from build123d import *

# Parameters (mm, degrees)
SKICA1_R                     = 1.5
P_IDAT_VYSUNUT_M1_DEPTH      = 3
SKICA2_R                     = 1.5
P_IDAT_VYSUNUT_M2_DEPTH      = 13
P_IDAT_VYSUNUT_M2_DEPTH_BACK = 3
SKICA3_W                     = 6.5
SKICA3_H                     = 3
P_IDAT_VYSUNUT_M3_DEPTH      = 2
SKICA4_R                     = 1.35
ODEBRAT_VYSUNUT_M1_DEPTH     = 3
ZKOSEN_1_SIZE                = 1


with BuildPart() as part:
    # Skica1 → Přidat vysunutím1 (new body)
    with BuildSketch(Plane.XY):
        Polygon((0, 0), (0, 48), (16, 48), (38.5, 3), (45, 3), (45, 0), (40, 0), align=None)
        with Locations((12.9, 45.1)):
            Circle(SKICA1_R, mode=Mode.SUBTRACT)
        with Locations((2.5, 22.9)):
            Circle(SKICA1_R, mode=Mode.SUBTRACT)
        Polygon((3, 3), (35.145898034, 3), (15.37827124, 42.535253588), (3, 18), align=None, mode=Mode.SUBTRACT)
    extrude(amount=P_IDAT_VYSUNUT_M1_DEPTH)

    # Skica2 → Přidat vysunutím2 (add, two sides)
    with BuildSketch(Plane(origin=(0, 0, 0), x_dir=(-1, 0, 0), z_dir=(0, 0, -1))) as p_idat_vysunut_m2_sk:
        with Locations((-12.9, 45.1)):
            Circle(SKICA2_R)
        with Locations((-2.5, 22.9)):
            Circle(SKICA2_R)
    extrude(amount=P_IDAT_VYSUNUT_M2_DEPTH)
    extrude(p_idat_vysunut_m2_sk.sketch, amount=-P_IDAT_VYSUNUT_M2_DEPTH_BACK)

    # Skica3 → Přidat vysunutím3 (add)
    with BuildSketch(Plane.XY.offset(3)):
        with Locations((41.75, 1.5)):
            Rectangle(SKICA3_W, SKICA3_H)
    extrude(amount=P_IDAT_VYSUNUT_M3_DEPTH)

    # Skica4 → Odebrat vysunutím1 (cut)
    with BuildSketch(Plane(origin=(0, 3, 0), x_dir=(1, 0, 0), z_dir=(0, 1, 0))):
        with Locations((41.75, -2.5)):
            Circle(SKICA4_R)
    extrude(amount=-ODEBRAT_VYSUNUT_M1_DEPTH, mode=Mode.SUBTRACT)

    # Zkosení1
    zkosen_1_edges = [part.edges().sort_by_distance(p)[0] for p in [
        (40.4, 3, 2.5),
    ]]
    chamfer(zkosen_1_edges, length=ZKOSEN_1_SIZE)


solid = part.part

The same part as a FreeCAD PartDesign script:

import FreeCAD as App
import Part
import Sketcher
from FreeCAD import Vector


def edges_at(feature, points):
    """Names of the edges that pass closest to the given points."""
    edges = feature.Shape.Edges
    near = lambda p: min(range(len(edges)), key=lambda i: edges[i].distToShape(Part.Vertex(*p))[0])
    return sorted({f"Edge{near(p) + 1}" for p in points})

doc = App.newDocument("Part")
body = doc.addObject("PartDesign::Body", "Body")

sketch1 = body.newObject("Sketcher::SketchObject", "Sketch")
sketch1.AttachmentSupport = (doc.getObject("XY_Plane"), [""])
sketch1.MapMode = "FlatFace"
sketch1.addGeometry(Part.LineSegment(Vector(0, 48, 0), Vector(0, 0, 0)), False)
sketch1.addGeometry(Part.LineSegment(Vector(0, 0, 0), Vector(45, 0, 0)), False)
sketch1.addGeometry(Part.LineSegment(Vector(45, 0, 0), Vector(45, 3, 0)), False)
sketch1.addGeometry(Part.LineSegment(Vector(45, 3, 0), Vector(38.5, 3, 0)), False)
sketch1.addGeometry(Part.LineSegment(Vector(38.5, 3, 0), Vector(16, 48, 0)), False)
sketch1.addGeometry(Part.LineSegment(Vector(16, 48, 0), Vector(0, 48, 0)), False)
sketch1.addGeometry(Part.LineSegment(Vector(3, 3, 0), Vector(3, 18, 0)), False)
sketch1.addGeometry(Part.LineSegment(Vector(3, 18, 0), Vector(15.378271, 42.535254, 0)), False)
sketch1.addGeometry(Part.LineSegment(Vector(15.378271, 42.535254, 0), Vector(35.145898, 3, 0)), False)
sketch1.addGeometry(Part.LineSegment(Vector(35.145898, 3, 0), Vector(3, 3, 0)), False)
sketch1.addGeometry(Part.Circle(Vector(2.5, 22.9, 0), Vector(0, 0, 1), 1.5), False)
sketch1.addGeometry(Part.Circle(Vector(12.9, 45.1, 0), Vector(0, 0, 1), 1.5), False)
sketch1.addConstraint(Sketcher.Constraint("Coincident", 0, 2, 1, 1))
sketch1.addConstraint(Sketcher.Constraint("Coincident", 1, 2, 2, 1))
sketch1.addConstraint(Sketcher.Constraint("Coincident", 2, 2, 3, 1))
sketch1.addConstraint(Sketcher.Constraint("Coincident", 3, 2, 4, 1))
sketch1.addConstraint(Sketcher.Constraint("Coincident", 4, 2, 5, 1))
sketch1.addConstraint(Sketcher.Constraint("Coincident", 5, 2, 0, 1))
sketch1.addConstraint(Sketcher.Constraint("Coincident", 6, 2, 7, 1))
sketch1.addConstraint(Sketcher.Constraint("Coincident", 7, 2, 8, 1))
sketch1.addConstraint(Sketcher.Constraint("Coincident", 8, 2, 9, 1))
sketch1.addConstraint(Sketcher.Constraint("Coincident", 9, 2, 6, 1))
sketch1.addConstraint(Sketcher.Constraint("Vertical", 0))
sketch1.addConstraint(Sketcher.Constraint("Horizontal", 1))
sketch1.addConstraint(Sketcher.Constraint("Vertical", 2))
sketch1.addConstraint(Sketcher.Constraint("Horizontal", 3))
sketch1.addConstraint(Sketcher.Constraint("Horizontal", 5))
sketch1.addConstraint(Sketcher.Constraint("Vertical", 6))
sketch1.addConstraint(Sketcher.Constraint("Horizontal", 9))
sketch1.addConstraint(Sketcher.Constraint("Coincident", 0, 2, -1, 1))
sketch1.addConstraint(Sketcher.Constraint("Equal", 10, 11))
sketch1.addConstraint(Sketcher.Constraint("Parallel", 4, 8))
sketch1.addConstraint(Sketcher.Constraint("Horizontal", 3, 2, 8, 2))
sketch1.addConstraint(Sketcher.Constraint("Diameter", 10, 3.0))
sketch1.addConstraint(Sketcher.Constraint("DistanceX", 1, 1, 1, 2, 45.0))
sketch1.addConstraint(Sketcher.Constraint("DistanceX", 5, 2, 5, 1, 16.0))
sketch1.addConstraint(Sketcher.Constraint("DistanceY", 0, 2, 0, 1, 48.0))
sketch1.addConstraint(Sketcher.Constraint("DistanceY", 2, 1, 2, 2, 3.0))
sketch1.addConstraint(Sketcher.Constraint("DistanceY", 6, 1, 6, 2, 15.0))
sketch1.addConstraint(Sketcher.Constraint("DistanceX", 3, 2, 3, 1, 6.5))
sketch1.addConstraint(Sketcher.Constraint("DistanceX", -1, 1, 6, 2, 3.0))
sketch1.addConstraint(Sketcher.Constraint("DistanceX", 10, 3, 3, 2, 36.0))
sketch1.addConstraint(Sketcher.Constraint("DistanceY", -1, 1, 10, 3, 22.9))
sketch1.addConstraint(Sketcher.Constraint("DistanceX", -1, 1, 11, 3, 12.9))
sketch1.addConstraint(Sketcher.Constraint("DistanceY", -1, 1, 11, 3, 45.1))
sketch1.addConstraint(Sketcher.Constraint("DistanceX", 9, 2, 9, 1, 32.145898))
sketch1.addConstraint(Sketcher.Constraint("DistanceX", -1, 1, 7, 2, 15.378271))
pad1 = body.newObject("PartDesign::Pad", "Pad")
pad1.Profile = sketch1
pad1.Length = 3

sketch2 = body.newObject("Sketcher::SketchObject", "Sketch001")
sketch2.AttachmentSupport = (doc.getObject("XY_Plane"), [""])
sketch2.MapMode = "FlatFace"
sketch2.addGeometry(Part.Circle(Vector(12.9, 45.1, 0), Vector(0, 0, 1), 1.5), False)
sketch2.addGeometry(Part.Circle(Vector(2.5, 22.9, 0), Vector(0, 0, 1), 1.5), False)
sketch2.addConstraint(Sketcher.Constraint("Equal", 0, 1))
sketch2.addConstraint(Sketcher.Constraint("Diameter", 0, 3.0))
sketch2.addConstraint(Sketcher.Constraint("DistanceX", -1, 1, 0, 3, 12.9))
sketch2.addConstraint(Sketcher.Constraint("DistanceY", -1, 1, 0, 3, 45.1))
sketch2.addConstraint(Sketcher.Constraint("DistanceX", -1, 1, 1, 3, 2.5))
sketch2.addConstraint(Sketcher.Constraint("DistanceY", -1, 1, 1, 3, 22.9))
pad2 = body.newObject("PartDesign::Pad", "Pad001")
pad2.Profile = sketch2
pad2.Type = "TwoLengths"
pad2.Length = 13
pad2.Length2 = 3
pad2.Reversed = True

sketch3 = body.newObject("Sketcher::SketchObject", "Sketch002")
sketch3.AttachmentSupport = (doc.getObject("XY_Plane"), [""])
sketch3.MapMode = "FlatFace"
sketch3.AttachmentOffset = App.Placement(Vector(0, 0, 3), App.Rotation())
sketch3.addGeometry(Part.LineSegment(Vector(38.5, 3, 0), Vector(38.5, 0, 0)), False)
sketch3.addGeometry(Part.LineSegment(Vector(38.5, 0, 0), Vector(45, 0, 0)), False)
sketch3.addGeometry(Part.LineSegment(Vector(45, 0, 0), Vector(45, 3, 0)), False)
sketch3.addGeometry(Part.LineSegment(Vector(45, 3, 0), Vector(38.5, 3, 0)), False)
sketch3.addConstraint(Sketcher.Constraint("Coincident", 0, 2, 1, 1))
sketch3.addConstraint(Sketcher.Constraint("Coincident", 1, 2, 2, 1))
sketch3.addConstraint(Sketcher.Constraint("Coincident", 2, 2, 3, 1))
sketch3.addConstraint(Sketcher.Constraint("Coincident", 3, 2, 0, 1))
sketch3.addConstraint(Sketcher.Constraint("Vertical", 0))
sketch3.addConstraint(Sketcher.Constraint("Horizontal", 1))
sketch3.addConstraint(Sketcher.Constraint("Vertical", 2))
sketch3.addConstraint(Sketcher.Constraint("Horizontal", 3))
sketch3.addConstraint(Sketcher.Constraint("PointOnObject", 0, 2, -1))
sketch3.addConstraint(Sketcher.Constraint("DistanceY", 0, 2, 0, 1, 3.0))
sketch3.addConstraint(Sketcher.Constraint("DistanceX", 1, 1, 1, 2, 6.5))
sketch3.addConstraint(Sketcher.Constraint("DistanceX", -1, 1, 1, 2, 45.0))
pad3 = body.newObject("PartDesign::Pad", "Pad002")
pad3.Profile = sketch3
pad3.Length = 2

sketch4 = body.newObject("Sketcher::SketchObject", "Sketch003")
sketch4.AttachmentSupport = (doc.getObject("XZ_Plane"), [""])
sketch4.MapMode = "FlatFace"
sketch4.AttachmentOffset = App.Placement(Vector(0, 0, -3), App.Rotation())
sketch4.addGeometry(Part.Circle(Vector(41.75, 2.5, 0), Vector(0, 0, 1), 1.35), False)
sketch4.addConstraint(Sketcher.Constraint("Diameter", 0, 2.7))
sketch4.addConstraint(Sketcher.Constraint("DistanceY", -1, 1, 0, 3, 2.5))
sketch4.addConstraint(Sketcher.Constraint("DistanceX", -1, 1, 0, 3, 41.75))
pocket1 = body.newObject("PartDesign::Pocket", "Pocket")
pocket1.Profile = sketch4
pocket1.Length = 3
pocket1.Reversed = True
doc.recompute()

chamfer = body.newObject("PartDesign::Chamfer", "Chamfer")
chamfer.Base = (pocket1, edges_at(pocket1, [(40.4, 3, 2.5)]))
chamfer.Size = 1

doc.recompute()
